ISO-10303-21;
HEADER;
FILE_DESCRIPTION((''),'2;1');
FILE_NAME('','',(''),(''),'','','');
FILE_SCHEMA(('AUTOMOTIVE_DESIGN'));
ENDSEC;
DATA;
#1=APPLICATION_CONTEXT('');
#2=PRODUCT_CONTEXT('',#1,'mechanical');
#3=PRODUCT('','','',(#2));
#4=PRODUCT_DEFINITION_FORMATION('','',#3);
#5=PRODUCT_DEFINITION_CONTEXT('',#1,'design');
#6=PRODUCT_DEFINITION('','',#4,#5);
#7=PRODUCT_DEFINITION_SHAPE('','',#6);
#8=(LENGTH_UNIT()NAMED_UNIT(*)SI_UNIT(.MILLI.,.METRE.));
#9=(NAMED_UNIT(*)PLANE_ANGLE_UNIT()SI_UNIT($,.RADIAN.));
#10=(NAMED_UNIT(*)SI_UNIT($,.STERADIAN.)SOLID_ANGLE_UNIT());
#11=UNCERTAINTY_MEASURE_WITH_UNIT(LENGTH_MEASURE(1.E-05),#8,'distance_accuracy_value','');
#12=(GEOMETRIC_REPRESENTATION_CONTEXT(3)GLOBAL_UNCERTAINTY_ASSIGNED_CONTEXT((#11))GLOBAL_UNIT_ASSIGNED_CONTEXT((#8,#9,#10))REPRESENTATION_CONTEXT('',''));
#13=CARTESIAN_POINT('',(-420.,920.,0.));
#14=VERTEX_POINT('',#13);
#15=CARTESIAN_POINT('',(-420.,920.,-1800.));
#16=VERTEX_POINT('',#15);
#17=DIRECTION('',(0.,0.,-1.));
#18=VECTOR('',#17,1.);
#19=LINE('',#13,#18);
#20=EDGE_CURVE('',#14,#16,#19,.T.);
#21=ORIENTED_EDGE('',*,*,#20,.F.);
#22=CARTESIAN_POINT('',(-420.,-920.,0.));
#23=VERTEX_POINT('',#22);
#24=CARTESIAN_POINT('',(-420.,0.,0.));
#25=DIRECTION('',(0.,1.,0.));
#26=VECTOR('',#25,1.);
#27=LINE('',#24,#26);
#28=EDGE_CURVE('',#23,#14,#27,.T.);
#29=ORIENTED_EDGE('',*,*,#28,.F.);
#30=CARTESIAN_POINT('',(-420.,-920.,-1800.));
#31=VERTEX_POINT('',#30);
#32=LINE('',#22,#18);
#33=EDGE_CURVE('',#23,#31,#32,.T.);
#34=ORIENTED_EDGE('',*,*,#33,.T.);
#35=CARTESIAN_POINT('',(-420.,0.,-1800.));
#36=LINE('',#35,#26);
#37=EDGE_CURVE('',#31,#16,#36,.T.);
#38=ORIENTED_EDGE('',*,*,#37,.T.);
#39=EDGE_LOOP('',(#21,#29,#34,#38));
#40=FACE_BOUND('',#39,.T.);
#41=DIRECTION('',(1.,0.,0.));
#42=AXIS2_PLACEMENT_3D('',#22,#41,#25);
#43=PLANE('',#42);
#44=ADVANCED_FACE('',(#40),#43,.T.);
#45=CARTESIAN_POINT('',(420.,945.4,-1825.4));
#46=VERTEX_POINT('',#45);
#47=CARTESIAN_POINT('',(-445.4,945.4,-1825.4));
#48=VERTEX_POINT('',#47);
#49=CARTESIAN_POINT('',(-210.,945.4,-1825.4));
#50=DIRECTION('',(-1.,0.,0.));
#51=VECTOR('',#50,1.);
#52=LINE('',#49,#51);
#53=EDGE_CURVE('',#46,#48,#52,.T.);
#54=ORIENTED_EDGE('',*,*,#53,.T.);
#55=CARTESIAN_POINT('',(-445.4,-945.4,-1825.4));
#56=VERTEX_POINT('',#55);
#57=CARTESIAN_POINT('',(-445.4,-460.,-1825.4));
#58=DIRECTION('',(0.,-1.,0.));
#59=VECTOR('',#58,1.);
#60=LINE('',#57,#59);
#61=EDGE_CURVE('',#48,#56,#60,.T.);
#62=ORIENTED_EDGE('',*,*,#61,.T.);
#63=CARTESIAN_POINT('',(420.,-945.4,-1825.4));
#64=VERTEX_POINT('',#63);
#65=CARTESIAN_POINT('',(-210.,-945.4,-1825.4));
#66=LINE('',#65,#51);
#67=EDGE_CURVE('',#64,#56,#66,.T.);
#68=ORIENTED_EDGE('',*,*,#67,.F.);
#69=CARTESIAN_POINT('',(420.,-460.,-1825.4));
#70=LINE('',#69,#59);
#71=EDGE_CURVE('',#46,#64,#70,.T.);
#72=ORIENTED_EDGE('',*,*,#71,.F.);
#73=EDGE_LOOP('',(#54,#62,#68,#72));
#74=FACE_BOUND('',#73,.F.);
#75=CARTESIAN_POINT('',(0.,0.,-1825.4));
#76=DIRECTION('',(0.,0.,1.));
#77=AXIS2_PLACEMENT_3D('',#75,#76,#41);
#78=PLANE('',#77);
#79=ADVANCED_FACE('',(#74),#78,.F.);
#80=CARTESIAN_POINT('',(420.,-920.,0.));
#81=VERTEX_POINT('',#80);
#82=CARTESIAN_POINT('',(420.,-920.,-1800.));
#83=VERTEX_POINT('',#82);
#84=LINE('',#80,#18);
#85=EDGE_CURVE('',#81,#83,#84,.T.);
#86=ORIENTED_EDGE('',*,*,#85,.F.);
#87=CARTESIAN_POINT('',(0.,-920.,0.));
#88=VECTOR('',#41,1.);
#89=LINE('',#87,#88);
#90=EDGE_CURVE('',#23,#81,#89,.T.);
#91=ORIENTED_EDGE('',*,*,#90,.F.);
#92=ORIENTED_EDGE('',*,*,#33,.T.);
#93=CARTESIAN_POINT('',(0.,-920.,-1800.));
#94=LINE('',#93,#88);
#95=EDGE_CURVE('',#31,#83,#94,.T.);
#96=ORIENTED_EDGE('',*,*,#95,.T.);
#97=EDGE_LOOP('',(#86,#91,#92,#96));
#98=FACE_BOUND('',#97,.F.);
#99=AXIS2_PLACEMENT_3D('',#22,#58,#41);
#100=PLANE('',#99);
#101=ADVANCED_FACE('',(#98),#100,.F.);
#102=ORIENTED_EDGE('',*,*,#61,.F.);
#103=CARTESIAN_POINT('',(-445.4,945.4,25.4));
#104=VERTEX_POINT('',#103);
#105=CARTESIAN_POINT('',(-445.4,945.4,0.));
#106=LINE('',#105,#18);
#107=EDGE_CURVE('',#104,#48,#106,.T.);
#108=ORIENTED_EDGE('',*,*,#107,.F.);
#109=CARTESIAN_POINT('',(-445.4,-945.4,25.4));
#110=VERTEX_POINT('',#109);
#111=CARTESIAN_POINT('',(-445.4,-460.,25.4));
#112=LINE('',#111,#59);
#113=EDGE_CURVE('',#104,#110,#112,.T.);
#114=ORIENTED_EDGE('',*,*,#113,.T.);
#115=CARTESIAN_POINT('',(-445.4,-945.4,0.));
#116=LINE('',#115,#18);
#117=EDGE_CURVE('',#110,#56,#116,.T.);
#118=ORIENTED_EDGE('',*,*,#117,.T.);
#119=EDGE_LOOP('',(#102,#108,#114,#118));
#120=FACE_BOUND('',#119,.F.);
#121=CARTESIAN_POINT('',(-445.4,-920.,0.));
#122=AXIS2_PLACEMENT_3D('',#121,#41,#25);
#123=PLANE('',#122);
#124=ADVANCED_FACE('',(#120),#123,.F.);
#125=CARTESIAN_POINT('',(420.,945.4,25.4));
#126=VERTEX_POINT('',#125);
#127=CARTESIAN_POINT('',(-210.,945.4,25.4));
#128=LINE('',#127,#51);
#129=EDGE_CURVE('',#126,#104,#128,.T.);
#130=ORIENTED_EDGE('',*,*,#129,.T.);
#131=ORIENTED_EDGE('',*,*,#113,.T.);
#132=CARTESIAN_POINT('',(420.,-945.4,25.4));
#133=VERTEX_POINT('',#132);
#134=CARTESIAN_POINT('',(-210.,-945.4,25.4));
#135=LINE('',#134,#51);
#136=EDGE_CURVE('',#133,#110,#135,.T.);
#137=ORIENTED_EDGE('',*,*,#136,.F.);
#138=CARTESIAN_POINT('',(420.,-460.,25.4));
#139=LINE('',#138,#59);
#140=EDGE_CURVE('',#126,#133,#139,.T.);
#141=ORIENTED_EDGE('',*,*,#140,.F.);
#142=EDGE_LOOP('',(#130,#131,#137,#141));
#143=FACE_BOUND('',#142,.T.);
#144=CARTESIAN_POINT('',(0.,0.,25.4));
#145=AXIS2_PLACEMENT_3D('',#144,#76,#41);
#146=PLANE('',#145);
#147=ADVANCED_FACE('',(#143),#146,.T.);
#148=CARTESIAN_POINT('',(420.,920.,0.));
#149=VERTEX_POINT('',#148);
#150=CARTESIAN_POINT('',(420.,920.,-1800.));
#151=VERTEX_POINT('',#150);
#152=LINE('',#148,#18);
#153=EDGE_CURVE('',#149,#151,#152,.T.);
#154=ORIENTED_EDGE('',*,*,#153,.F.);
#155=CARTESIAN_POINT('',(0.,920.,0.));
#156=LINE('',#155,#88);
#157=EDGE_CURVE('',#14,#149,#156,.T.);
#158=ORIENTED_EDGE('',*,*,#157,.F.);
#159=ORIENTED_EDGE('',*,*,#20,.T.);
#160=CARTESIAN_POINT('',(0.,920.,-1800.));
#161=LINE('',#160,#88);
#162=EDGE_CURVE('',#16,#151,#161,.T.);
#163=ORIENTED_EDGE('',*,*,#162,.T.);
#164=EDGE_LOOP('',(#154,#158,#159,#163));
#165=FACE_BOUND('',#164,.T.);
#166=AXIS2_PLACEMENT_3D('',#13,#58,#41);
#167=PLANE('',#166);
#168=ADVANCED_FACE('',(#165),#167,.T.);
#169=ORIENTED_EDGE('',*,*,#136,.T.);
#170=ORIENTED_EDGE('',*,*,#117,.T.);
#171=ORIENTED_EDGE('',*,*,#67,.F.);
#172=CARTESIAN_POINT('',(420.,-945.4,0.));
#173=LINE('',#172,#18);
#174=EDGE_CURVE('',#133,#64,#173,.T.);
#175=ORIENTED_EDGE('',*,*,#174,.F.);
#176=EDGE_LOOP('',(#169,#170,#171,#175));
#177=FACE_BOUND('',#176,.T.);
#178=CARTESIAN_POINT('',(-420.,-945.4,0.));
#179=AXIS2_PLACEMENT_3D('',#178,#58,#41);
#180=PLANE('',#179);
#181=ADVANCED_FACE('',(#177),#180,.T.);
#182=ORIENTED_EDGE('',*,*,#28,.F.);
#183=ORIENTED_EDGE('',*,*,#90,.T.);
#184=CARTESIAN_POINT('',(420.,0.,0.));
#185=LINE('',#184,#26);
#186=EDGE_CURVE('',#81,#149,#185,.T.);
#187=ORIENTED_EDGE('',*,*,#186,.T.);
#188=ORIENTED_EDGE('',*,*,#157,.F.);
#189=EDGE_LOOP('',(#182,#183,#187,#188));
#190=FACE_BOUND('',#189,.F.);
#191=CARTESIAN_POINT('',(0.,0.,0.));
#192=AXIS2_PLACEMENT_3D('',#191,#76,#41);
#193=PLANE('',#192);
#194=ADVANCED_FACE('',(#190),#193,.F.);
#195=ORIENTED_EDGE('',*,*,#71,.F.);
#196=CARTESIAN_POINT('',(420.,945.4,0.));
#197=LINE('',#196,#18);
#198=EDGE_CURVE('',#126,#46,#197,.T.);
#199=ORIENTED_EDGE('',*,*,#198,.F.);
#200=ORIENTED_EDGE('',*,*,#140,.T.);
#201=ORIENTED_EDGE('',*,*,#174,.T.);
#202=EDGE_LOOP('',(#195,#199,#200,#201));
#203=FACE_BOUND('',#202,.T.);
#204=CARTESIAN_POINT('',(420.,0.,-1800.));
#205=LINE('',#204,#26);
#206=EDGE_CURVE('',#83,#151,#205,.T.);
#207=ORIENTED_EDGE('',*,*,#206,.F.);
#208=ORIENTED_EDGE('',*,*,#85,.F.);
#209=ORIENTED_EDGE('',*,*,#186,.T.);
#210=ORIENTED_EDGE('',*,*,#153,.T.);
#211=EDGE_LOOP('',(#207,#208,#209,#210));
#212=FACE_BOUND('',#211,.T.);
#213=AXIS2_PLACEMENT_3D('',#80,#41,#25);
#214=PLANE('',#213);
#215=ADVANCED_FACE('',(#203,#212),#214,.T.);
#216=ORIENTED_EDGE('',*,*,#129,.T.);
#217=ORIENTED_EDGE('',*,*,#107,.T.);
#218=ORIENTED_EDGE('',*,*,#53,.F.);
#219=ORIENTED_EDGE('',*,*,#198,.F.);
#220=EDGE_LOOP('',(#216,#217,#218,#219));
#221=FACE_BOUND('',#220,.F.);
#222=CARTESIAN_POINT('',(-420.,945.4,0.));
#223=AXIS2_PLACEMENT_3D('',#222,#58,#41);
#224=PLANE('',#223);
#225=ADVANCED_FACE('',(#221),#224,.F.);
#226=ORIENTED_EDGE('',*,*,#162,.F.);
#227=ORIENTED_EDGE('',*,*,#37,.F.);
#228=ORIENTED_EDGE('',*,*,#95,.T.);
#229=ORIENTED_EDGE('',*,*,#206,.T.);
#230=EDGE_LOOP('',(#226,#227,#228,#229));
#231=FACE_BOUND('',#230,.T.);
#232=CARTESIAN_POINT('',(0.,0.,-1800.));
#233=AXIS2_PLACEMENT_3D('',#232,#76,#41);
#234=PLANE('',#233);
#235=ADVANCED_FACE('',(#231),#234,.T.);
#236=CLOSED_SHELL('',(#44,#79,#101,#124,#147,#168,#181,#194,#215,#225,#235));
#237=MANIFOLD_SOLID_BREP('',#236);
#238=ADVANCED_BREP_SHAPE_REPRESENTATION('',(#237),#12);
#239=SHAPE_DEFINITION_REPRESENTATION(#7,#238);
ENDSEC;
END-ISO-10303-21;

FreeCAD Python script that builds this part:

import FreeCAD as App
import Part
import Sketcher
from FreeCAD import Vector
Q = App.Units.Quantity


def faces_at(feature, points):
    """Names of the faces that lie closest to the given points."""
    faces = feature.Shape.Faces
    near = lambda p: min(range(len(faces)), key=lambda i: faces[i].distToShape(Part.Vertex(*p))[0])
    return sorted({f"Face{near(p) + 1}" for p in points})

doc = App.newDocument("Part")
body = doc.addObject("PartDesign::Body", "Body")

# Sketch on XY plane
sketch1 = doc.addObject("Sketcher::SketchObject", "Sketch")
body.addObject(sketch1)
sketch1.AttachmentSupport = (doc.XY_Plane, [""])
sketch1.MapMode = "FlatFace"
sketch1.addGeometry([
    Part.LineSegment(Vector(-420, 920, 0), Vector(-420, -920, 0)),
    Part.LineSegment(Vector(-420, -920, 0), Vector(420, -920, 0)),
    Part.LineSegment(Vector(420, -920, 0), Vector(420, 920, 0)),
    Part.LineSegment(Vector(420, 920, 0), Vector(-420, 920, 0)),
], False)
sketch1.addConstraint([
    Sketcher.Constraint("Coincident", 0, 2, 1, 1),
    Sketcher.Constraint("Coincident", 1, 2, 2, 1),
    Sketcher.Constraint("Coincident", 2, 2, 3, 1),
    Sketcher.Constraint("Coincident", 3, 2, 0, 1),
    Sketcher.Constraint("Vertical", 0),
    Sketcher.Constraint("Horizontal", 1),
    Sketcher.Constraint("Vertical", 2),
    Sketcher.Constraint("Horizontal", 3),
    Sketcher.Constraint("Symmetric", 0, 2, 2, 2, -1, 1),
    Sketcher.Constraint("DistanceX", 1, 1, 1, 2, Q("840 mm")),
    Sketcher.Constraint("DistanceY", 0, 2, 0, 1, Q("1840 mm")),
])
pad1 = doc.addObject("PartDesign::Pad", "Pad")
body.addObject(pad1)
pad1.Profile = sketch1
pad1.Length = 1800
pad1.Reversed = True
doc.recompute()

thickness = doc.addObject("PartDesign::Thickness", "Thickness")
body.addObject(thickness)
thickness.Base = (pad1, faces_at(pad1, [(420, 0, -900)]))
thickness.Value = 25.4
thickness.Reversed = False
thickness.Join = "Intersection"

doc.recompute()
